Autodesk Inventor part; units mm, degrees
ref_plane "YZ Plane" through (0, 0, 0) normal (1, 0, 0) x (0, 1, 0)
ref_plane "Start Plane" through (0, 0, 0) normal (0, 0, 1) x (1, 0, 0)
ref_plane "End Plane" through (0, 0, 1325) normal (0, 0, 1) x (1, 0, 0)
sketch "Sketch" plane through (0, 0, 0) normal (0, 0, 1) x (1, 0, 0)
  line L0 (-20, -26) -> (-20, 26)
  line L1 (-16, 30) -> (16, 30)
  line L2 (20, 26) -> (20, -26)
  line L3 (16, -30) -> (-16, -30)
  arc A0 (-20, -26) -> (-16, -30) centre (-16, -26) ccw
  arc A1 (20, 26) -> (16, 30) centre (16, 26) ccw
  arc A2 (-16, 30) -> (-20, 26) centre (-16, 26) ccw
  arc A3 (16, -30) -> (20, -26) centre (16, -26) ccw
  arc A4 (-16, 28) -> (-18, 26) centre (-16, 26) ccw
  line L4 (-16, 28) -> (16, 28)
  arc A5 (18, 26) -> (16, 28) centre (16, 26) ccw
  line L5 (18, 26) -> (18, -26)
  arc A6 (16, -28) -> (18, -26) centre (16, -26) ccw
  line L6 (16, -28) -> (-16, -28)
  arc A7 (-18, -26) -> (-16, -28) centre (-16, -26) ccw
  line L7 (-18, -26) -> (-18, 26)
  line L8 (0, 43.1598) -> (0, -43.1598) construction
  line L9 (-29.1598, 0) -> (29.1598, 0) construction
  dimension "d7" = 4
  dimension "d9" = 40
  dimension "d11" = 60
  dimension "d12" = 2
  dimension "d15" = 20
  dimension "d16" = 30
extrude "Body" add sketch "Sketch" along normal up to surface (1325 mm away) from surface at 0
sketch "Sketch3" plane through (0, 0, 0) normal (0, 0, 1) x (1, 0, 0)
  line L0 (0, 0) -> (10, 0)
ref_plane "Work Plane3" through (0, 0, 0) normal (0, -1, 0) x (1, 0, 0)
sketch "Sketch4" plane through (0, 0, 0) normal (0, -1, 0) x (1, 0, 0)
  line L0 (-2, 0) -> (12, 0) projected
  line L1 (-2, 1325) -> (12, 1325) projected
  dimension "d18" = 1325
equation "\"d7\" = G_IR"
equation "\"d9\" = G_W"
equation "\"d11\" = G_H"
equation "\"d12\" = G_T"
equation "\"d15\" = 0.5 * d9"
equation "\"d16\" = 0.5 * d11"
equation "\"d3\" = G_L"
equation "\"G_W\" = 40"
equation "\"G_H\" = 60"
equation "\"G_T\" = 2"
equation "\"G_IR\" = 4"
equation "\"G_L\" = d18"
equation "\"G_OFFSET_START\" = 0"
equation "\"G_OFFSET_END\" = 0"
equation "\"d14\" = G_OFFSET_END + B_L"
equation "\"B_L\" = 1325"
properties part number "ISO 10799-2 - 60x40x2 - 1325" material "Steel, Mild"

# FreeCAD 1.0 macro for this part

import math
import FreeCAD as App
import Part
import Sketcher

V = App.Vector
Q = App.Units.Quantity

doc = App.newDocument("Part")
body = doc.addObject("PartDesign::Body", "Body")

# Sketch on XY plane
sketch1 = body.newObject("Sketcher::SketchObject", "Sketch")
sketch1.AttachmentSupport = (doc.getObject("XY_Plane"), [""])
sketch1.MapMode = "FlatFace"
sketch1.addGeometry([
    Part.LineSegment(V(-20, 26, 0), V(-20, -26, 0)),  # 0
    Part.ArcOfCircle(Part.Circle(V(-16, -26, 0), V(0, 0, 1), 4), math.radians(180), math.radians(270)),  # 1
    Part.LineSegment(V(-16, -30, 0), V(16, -30, 0)),  # 2
    Part.ArcOfCircle(Part.Circle(V(16, -26, 0), V(0, 0, 1), 4), math.radians(-90), math.radians(0)),  # 3
    Part.LineSegment(V(20, -26, 0), V(20, 26, 0)),  # 4
    Part.ArcOfCircle(Part.Circle(V(16, 26, 0), V(0, 0, 1), 4), math.radians(0), math.radians(90)),  # 5
    Part.LineSegment(V(16, 30, 0), V(-16, 30, 0)),  # 6
    Part.ArcOfCircle(Part.Circle(V(-16, 26, 0), V(0, 0, 1), 4), math.radians(90), math.radians(180)),  # 7
    Part.ArcOfCircle(Part.Circle(V(-16, 26, 0), V(0, 0, 1), 2), math.radians(90), math.radians(180)),  # 8
    Part.LineSegment(V(-16, 28, 0), V(16, 28, 0)),  # 9
    Part.ArcOfCircle(Part.Circle(V(16, 26, 0), V(0, 0, 1), 2), math.radians(0), math.radians(90)),  # 10
    Part.LineSegment(V(18, 26, 0), V(18, -26, 0)),  # 11
    Part.ArcOfCircle(Part.Circle(V(16, -26, 0), V(0, 0, 1), 2), math.radians(-90), math.radians(0)),  # 12
    Part.LineSegment(V(16, -28, 0), V(-16, -28, 0)),  # 13
    Part.ArcOfCircle(Part.Circle(V(-16, -26, 0), V(0, 0, 1), 2), math.radians(180), math.radians(270)),  # 14
    Part.LineSegment(V(-18, -26, 0), V(-18, 26, 0)),  # 15
], False)
sketch1.addConstraint([
    Sketcher.Constraint("Tangent", 0, 2, 1, 1),
    Sketcher.Constraint("Tangent", 1, 2, 2, 1),
    Sketcher.Constraint("Tangent", 2, 2, 3, 1),
    Sketcher.Constraint("Tangent", 3, 2, 4, 1),
    Sketcher.Constraint("Tangent", 4, 2, 5, 1),
    Sketcher.Constraint("Tangent", 5, 2, 6, 1),
    Sketcher.Constraint("Tangent", 6, 2, 7, 1),
    Sketcher.Constraint("Tangent", 7, 2, 0, 1),
    Sketcher.Constraint("Tangent", 8, 1, 9, 1),
    Sketcher.Constraint("Tangent", 9, 2, 10, 2),
    Sketcher.Constraint("Tangent", 10, 1, 11, 1),
    Sketcher.Constraint("Tangent", 11, 2, 12, 2),
    Sketcher.Constraint("Tangent", 12, 1, 13, 1),
    Sketcher.Constraint("Tangent", 13, 2, 14, 2),
    Sketcher.Constraint("Tangent", 14, 1, 15, 1),
    Sketcher.Constraint("Tangent", 15, 2, 8, 2),
    Sketcher.Constraint("Vertical", 0),
    Sketcher.Constraint("Horizontal", 2),
    Sketcher.Constraint("Vertical", 4),
    Sketcher.Constraint("Horizontal", 6),
    Sketcher.Constraint("Horizontal", 9),
    Sketcher.Constraint("Vertical", 11),
    Sketcher.Constraint("Horizontal", 13),
    Sketcher.Constraint("Vertical", 15),
    Sketcher.Constraint("Coincident", 8, 3, 7, 3),
    Sketcher.Constraint("Coincident", 10, 3, 5, 3),
    Sketcher.Constraint("Coincident", 12, 3, 3, 3),
    Sketcher.Constraint("Equal", 1, 3),
    Sketcher.Constraint("Equal", 3, 5),
    Sketcher.Constraint("Equal", 5, 7),
    Sketcher.Constraint("Equal", 12, 14),
    Sketcher.Constraint("Symmetric", 1, 3, 5, 3, -1, 1),
    Sketcher.Constraint("Radius", 1, Q("4 mm")),
    Sketcher.Constraint("Radius", 8, Q("2 mm")),
    Sketcher.Constraint("DistanceX", 0, 2, -1, 1, Q("20 mm")),
    Sketcher.Constraint("DistanceY", 1, 2, -1, 1, Q("30 mm")),
])
pad1 = body.newObject("PartDesign::Pad", "Pad")
pad1.Profile = sketch1
pad1.Length = 1325

doc.recompute()
